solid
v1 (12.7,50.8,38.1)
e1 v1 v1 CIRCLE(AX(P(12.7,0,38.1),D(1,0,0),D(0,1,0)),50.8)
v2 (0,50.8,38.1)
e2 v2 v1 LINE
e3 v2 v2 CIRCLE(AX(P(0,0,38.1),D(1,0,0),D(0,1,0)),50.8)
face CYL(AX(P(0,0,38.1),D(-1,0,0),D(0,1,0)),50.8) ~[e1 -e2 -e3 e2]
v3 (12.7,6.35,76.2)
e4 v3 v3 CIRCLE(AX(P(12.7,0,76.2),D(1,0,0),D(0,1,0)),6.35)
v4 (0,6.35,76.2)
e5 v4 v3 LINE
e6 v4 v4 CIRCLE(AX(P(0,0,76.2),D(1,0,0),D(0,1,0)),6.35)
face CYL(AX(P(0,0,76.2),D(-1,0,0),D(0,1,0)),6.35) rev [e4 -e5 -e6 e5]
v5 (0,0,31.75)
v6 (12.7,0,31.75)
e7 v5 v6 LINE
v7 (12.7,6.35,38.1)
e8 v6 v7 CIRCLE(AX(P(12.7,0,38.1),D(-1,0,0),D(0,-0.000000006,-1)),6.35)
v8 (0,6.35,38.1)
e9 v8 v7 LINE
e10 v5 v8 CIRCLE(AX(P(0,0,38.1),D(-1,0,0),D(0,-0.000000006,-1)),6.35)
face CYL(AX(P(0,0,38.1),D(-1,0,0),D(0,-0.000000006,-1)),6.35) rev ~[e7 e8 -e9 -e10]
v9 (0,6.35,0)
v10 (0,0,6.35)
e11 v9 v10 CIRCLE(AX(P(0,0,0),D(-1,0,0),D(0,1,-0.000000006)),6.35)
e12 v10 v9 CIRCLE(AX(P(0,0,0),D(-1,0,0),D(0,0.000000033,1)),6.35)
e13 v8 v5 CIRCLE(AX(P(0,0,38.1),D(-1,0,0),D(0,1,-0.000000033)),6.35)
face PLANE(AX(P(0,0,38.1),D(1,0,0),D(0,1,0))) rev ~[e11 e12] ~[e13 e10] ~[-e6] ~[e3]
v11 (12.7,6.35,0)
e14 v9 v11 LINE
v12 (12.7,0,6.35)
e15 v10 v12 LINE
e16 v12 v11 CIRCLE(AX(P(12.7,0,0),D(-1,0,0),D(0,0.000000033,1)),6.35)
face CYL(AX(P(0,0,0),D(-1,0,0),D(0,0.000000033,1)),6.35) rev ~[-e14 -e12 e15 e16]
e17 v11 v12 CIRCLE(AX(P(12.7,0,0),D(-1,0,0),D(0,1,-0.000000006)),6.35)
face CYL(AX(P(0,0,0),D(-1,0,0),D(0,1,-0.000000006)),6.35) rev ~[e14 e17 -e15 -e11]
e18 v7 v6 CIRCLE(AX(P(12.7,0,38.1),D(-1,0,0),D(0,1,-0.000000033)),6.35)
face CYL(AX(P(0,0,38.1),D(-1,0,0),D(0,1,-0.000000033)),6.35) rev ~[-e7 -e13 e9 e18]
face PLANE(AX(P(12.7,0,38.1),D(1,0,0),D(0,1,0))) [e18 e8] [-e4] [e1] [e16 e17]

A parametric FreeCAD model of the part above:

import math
import FreeCAD as App
import Part
import Sketcher
from FreeCAD import Vector
Q = App.Units.Quantity

doc = App.newDocument("Part")
body = doc.addObject("PartDesign::Body", "Body")

# Sketch on YZ plane
sketch1 = body.newObject("Sketcher::SketchObject", "Sketch")
sketch1.AttachmentSupport = (doc.getObject("YZ_Plane"), [""])
sketch1.MapMode = "FlatFace"
sketch1.addGeometry([
    Part.Circle(Vector(0, 38, 0), Vector(0, 0, 1), 51),  # 0
    Part.ArcOfCircle(Part.Circle(Vector(0, 0, 0), Vector(0, 0, 1), 6), math.radians(0), math.radians(90)),  # 1
    Part.ArcOfCircle(Part.Circle(Vector(0, 0, 0), Vector(0, 0, 1), 6), math.radians(90), math.radians(360)),  # 2
    Part.ArcOfCircle(Part.Circle(Vector(0, 38, 0), Vector(0, 0, 1), 6), math.radians(0), math.radians(270)),  # 3
    Part.ArcOfCircle(Part.Circle(Vector(0, 38, 0), Vector(0, 0, 1), 6), math.radians(-90), math.radians(0)),  # 4
    Part.Circle(Vector(0, 76, 0), Vector(0, 0, 1), 6),  # 5
], False)
sketch1.addConstraint([
    Sketcher.Constraint("Tangent", 1, 1, 2, 2),
    Sketcher.Constraint("Coincident", 2, 1, 1, 2),
    Sketcher.Constraint("Tangent", 3, 1, 4, 2),
    Sketcher.Constraint("Coincident", 4, 1, 3, 2),
    Sketcher.Constraint("Coincident", 1, 3, -1, 1),
    Sketcher.Constraint("Coincident", 3, 3, 0, 3),
    Sketcher.Constraint("Equal", 2, 3),
    Sketcher.Constraint("Equal", 4, 5),
    Sketcher.Constraint("PointOnObject", 0, 3, -2),
    Sketcher.Constraint("PointOnObject", 5, 3, -2),
    Sketcher.Constraint("PointOnObject", 1, 1, -1),
    Sketcher.Constraint("PointOnObject", 2, 1, -2),
    Sketcher.Constraint("PointOnObject", 4, 1, -2),
    Sketcher.Constraint("Horizontal", 4, 3, 3, 1),
    Sketcher.Constraint("Diameter", 0, Q("4 in")),
    Sketcher.Constraint("Diameter", 5, Q("0.5 in")),
    Sketcher.Constraint("DistanceY", -1, 1, 5, 3, Q("3 in")),
    Sketcher.Constraint("DistanceY", 2, 1, 4, 1, Q("1 in")),
])
pad1 = body.newObject("PartDesign::Pad", "Pad")
pad1.Profile = sketch1
pad1.Length = Q("0.5 in")

doc.recompute()
